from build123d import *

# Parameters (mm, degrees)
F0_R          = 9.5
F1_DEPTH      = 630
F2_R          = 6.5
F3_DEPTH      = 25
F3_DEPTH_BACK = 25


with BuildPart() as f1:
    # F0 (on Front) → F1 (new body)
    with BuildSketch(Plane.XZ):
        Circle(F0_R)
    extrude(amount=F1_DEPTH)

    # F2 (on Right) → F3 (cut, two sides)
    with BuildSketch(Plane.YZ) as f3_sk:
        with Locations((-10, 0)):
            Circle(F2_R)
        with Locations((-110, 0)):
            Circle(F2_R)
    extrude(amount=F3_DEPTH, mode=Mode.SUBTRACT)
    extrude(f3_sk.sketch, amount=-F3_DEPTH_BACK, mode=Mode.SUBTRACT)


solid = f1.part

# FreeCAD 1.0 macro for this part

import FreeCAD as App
import Part
import Sketcher
Q = App.Units.Quantity

doc = App.newDocument("Part")
body = doc.addObject("PartDesign::Body", "Body")

sketch1 = doc.addObject("Sketcher::SketchObject", "Sketch")
body.addObject(sketch1)
sketch1.AttachmentSupport = (doc.XZ_Plane, [""])
sketch1.MapMode = "FlatFace"
sketch1.addGeometry(Part.Circle(App.Vector(0, 0, 0), App.Vector(0, 0, 1), 9.5), False)
sketch1.addConstraint(Sketcher.Constraint("Coincident", 0, 3, -1, 1))
sketch1.addConstraint(Sketcher.Constraint("Diameter", 0, Q("19 mm")))
pad1 = doc.addObject("PartDesign::Pad", "Pad")
body.addObject(pad1)
pad1.Profile = sketch1
pad1.Length = 630

sketch2 = doc.addObject("Sketcher::SketchObject", "Sketch001")
body.addObject(sketch2)
sketch2.AttachmentSupport = (doc.YZ_Plane, [""])
sketch2.MapMode = "FlatFace"
sketch2.addGeometry(Part.Circle(App.Vector(-10, 0, 0), App.Vector(0, 0, 1), 6.5), False)
sketch2.addGeometry(Part.Circle(App.Vector(-110, 0, 0), App.Vector(0, 0, 1), 6.5), False)
sketch2.addConstraint(Sketcher.Constraint("Equal", 0, 1))
sketch2.addConstraint(Sketcher.Constraint("PointOnObject", 0, 3, -1))
sketch2.addConstraint(Sketcher.Constraint("PointOnObject", 1, 3, -1))
sketch2.addConstraint(Sketcher.Constraint("Diameter", 0, Q("13 mm")))
sketch2.addConstraint(Sketcher.Constraint("DistanceX", 0, 3, -1, 1, Q("10 mm")))
sketch2.addConstraint(Sketcher.Constraint("DistanceX", 1, 3, -1, 1, Q("110 mm")))
pocket1 = doc.addObject("PartDesign::Pocket", "Pocket")
body.addObject(pocket1)
pocket1.Profile = sketch2
pocket1.Type = "ThroughAll"
pocket1.Midplane = True

doc.recompute()
